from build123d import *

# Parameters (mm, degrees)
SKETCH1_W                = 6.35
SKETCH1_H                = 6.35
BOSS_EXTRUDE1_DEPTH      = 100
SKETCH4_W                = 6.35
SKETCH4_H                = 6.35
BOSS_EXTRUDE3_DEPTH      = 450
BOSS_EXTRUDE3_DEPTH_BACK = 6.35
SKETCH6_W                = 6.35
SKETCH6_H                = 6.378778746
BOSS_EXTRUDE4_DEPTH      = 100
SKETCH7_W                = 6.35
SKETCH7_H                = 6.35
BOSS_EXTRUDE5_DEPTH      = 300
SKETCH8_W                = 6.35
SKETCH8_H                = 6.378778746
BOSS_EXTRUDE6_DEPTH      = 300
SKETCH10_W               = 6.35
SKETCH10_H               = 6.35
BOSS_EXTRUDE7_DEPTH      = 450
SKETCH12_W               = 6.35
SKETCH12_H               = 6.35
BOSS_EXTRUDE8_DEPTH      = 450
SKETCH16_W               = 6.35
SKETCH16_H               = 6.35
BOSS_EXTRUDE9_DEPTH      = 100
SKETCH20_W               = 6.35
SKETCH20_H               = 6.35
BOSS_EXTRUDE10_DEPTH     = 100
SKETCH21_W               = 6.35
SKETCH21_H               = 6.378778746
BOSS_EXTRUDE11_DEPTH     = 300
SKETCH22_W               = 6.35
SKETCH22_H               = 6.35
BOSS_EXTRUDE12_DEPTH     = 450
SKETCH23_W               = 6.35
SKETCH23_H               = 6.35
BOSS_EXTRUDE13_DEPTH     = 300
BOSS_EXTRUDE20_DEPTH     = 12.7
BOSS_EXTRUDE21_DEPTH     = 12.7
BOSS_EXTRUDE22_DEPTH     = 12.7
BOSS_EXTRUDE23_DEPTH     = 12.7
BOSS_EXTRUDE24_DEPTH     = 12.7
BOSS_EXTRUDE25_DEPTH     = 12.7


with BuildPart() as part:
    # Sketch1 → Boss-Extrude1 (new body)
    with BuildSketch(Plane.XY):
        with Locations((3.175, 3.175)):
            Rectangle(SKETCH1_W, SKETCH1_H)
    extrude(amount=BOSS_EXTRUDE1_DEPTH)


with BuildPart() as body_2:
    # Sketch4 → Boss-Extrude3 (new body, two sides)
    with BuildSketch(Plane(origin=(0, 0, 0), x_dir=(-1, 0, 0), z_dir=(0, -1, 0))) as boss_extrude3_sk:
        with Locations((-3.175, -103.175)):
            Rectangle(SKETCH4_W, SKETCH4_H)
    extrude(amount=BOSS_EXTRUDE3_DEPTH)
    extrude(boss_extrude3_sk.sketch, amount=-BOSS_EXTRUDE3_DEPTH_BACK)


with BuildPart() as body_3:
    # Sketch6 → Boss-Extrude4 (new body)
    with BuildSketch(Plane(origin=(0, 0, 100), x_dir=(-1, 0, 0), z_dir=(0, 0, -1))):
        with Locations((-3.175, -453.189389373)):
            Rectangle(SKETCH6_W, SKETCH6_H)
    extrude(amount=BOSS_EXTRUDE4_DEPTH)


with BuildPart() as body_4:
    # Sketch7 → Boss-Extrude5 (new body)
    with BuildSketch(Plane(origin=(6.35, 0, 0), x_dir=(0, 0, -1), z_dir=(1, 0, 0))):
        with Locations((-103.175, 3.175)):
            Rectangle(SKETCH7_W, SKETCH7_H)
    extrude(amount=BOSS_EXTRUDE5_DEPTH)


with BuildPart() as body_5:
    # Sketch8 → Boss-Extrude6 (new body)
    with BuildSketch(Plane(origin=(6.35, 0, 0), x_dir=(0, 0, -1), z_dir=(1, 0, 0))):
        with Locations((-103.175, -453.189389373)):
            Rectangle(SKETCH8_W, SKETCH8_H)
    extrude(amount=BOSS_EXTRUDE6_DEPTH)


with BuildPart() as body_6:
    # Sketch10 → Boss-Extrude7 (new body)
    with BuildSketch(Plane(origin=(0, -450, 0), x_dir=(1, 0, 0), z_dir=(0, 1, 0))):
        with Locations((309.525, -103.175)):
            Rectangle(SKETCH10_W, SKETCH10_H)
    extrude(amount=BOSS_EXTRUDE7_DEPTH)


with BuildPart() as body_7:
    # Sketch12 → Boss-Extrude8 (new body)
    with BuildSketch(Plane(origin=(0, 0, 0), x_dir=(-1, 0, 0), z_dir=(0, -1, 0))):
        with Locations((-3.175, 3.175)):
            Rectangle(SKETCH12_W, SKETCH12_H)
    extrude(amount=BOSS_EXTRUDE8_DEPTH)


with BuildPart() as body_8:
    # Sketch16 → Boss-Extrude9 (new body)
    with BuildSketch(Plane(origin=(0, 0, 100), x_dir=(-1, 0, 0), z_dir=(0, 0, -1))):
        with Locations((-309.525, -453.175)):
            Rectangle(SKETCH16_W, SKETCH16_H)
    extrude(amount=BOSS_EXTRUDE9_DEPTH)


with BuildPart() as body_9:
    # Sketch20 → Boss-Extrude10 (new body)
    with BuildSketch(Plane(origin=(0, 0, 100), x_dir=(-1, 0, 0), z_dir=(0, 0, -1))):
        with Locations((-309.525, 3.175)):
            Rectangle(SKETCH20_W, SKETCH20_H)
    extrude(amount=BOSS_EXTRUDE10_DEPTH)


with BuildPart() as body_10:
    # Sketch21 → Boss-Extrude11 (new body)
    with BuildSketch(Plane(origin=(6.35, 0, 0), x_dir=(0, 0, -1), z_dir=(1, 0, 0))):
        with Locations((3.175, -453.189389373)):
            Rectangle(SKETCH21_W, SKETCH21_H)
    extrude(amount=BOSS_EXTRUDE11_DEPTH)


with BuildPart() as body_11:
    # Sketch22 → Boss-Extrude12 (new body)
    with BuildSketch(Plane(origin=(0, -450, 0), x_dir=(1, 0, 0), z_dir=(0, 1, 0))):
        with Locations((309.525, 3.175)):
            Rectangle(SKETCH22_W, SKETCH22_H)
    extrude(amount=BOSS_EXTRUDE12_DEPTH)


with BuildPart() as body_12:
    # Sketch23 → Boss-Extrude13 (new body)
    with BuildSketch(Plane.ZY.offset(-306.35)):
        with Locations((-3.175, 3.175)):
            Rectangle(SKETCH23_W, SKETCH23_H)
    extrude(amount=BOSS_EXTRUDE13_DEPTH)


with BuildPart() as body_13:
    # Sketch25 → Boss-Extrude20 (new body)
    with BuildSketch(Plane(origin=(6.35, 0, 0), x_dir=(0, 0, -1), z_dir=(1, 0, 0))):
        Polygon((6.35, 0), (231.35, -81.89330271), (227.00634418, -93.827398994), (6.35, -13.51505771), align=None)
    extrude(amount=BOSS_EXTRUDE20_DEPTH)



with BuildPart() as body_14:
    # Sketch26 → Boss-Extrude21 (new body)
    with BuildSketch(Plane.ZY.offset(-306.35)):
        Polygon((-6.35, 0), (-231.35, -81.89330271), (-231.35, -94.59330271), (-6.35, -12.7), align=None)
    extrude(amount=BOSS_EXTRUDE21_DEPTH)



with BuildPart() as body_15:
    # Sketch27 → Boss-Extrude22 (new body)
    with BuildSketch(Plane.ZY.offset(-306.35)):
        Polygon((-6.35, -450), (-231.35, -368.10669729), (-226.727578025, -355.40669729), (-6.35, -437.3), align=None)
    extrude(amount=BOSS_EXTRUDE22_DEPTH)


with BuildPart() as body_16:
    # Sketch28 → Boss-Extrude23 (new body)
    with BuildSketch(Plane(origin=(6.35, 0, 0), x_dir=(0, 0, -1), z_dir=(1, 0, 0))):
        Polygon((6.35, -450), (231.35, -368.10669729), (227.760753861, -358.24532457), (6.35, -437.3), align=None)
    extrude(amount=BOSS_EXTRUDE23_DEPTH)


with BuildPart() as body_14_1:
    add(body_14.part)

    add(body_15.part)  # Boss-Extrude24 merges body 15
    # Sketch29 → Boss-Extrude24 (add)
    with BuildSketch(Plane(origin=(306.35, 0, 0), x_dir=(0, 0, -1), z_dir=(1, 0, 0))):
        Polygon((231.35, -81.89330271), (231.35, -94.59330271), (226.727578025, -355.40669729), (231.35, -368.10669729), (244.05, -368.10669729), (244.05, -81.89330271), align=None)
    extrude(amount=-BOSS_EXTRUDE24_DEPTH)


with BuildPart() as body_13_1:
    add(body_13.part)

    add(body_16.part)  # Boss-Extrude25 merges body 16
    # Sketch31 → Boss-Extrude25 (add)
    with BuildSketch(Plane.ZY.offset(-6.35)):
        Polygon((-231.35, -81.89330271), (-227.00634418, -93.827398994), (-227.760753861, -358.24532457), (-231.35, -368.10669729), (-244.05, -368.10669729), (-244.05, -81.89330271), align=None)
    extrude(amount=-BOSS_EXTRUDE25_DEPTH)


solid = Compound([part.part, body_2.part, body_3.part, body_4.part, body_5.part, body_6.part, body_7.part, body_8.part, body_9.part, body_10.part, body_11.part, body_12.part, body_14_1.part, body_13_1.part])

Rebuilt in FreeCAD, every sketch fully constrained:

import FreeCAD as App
import Part
import Sketcher
Q = App.Units.Quantity

doc = App.newDocument("Part")
body = doc.addObject("PartDesign::Body", "Body")

# Sketch on XY plane
sketch1 = body.newObject("Sketcher::SketchObject", "Sketch")
sketch1.AttachmentSupport = (doc.getObject("XY_Plane"), [""])
sketch1.MapMode = "FlatFace"
sketch1.addGeometry([
    Part.LineSegment(App.Vector(0, 6.35, 0), App.Vector(0, 0, 0)),
    Part.LineSegment(App.Vector(0, 0, 0), App.Vector(6.35, 0, 0)),
    Part.LineSegment(App.Vector(6.35, 0, 0), App.Vector(6.35, 6.35, 0)),
    Part.LineSegment(App.Vector(6.35, 6.35, 0), App.Vector(0, 6.35, 0)),
], False)
sketch1.addConstraint([
    Sketcher.Constraint("Coincident", 0, 2, 1, 1),
    Sketcher.Constraint("Coincident", 1, 2, 2, 1),
    Sketcher.Constraint("Coincident", 2, 2, 3, 1),
    Sketcher.Constraint("Coincident", 3, 2, 0, 1),
    Sketcher.Constraint("Vertical", 0),
    Sketcher.Constraint("Horizontal", 1),
    Sketcher.Constraint("Vertical", 2),
    Sketcher.Constraint("Horizontal", 3),
    Sketcher.Constraint("Coincident", 0, 2, -1, 1),
    Sketcher.Constraint("Equal", 3, 0),
    Sketcher.Constraint("DistanceX", 1, 1, 1, 2, 6.35),
])
pad1 = body.newObject("PartDesign::Pad", "Pad")
pad1.Profile = sketch1
pad1.Length = 100
body2 = doc.addObject("PartDesign::Body", "Body001")

# Sketch on XZ plane
sketch2 = body2.newObject("Sketcher::SketchObject", "Sketch001")
sketch2.AttachmentSupport = (doc.getObject("XZ_Plane001"), [""])
sketch2.MapMode = "FlatFace"
sketch2.addGeometry([
    Part.LineSegment(App.Vector(6.35, 100, 0), App.Vector(6.35, 106.35, 0)),
    Part.LineSegment(App.Vector(6.35, 106.35, 0), App.Vector(0, 106.35, 0)),
    Part.LineSegment(App.Vector(0, 106.35, 0), App.Vector(0, 100, 0)),
    Part.LineSegment(App.Vector(0, 100, 0), App.Vector(6.35, 100, 0)),
], False)
sketch2.addConstraint([
    Sketcher.Constraint("Coincident", 0, 2, 1, 1),
    Sketcher.Constraint("Coincident", 1, 2, 2, 1),
    Sketcher.Constraint("Coincident", 2, 2, 3, 1),
    Sketcher.Constraint("Coincident", 3, 2, 0, 1),
    Sketcher.Constraint("Vertical", 0),
    Sketcher.Constraint("Horizontal", 1),
    Sketcher.Constraint("Vertical", 2),
    Sketcher.Constraint("Horizontal", 3),
    Sketcher.Constraint("PointOnObject", 1, 2, -2),
    Sketcher.Constraint("Equal", 3, 0),
    Sketcher.Constraint("DistanceY", -1, 1, 2, 2, 100.0),
    Sketcher.Constraint("DistanceX", 1, 2, 1, 1, 6.35),
])
pad2 = body2.newObject("PartDesign::Pad", "Pad001")
pad2.Profile = sketch2
pad2.Type = "TwoLengths"
pad2.Length = 450
pad2.Length2 = 6.35
body3 = doc.addObject("PartDesign::Body", "Body002")

# Sketch on XY plane
sketch3 = body3.newObject("Sketcher::SketchObject", "Sketch002")
sketch3.AttachmentSupport = (doc.getObject("XY_Plane002"), [""])
sketch3.MapMode = "FlatFace"
sketch3.AttachmentOffset = App.Placement(App.Vector(0, 0, 100), App.Rotation())
sketch3.addGeometry([
    Part.LineSegment(App.Vector(6.35, -450, 0), App.Vector(6.35, -456.378779, 0)),
    Part.LineSegment(App.Vector(6.35, -456.378779, 0), App.Vector(0, -456.378779, 0)),
    Part.LineSegment(App.Vector(0, -456.378779, 0), App.Vector(0, -450, 0)),
    Part.LineSegment(App.Vector(0, -450, 0), App.Vector(6.35, -450, 0)),
], False)
sketch3.addConstraint([
    Sketcher.Constraint("Coincident", 0, 2, 1, 1),
    Sketcher.Constraint("Coincident", 1, 2, 2, 1),
    Sketcher.Constraint("Coincident", 2, 2, 3, 1),
    Sketcher.Constraint("Coincident", 3, 2, 0, 1),
    Sketcher.Constraint("Vertical", 0),
    Sketcher.Constraint("Horizontal", 1),
    Sketcher.Constraint("Vertical", 2),
    Sketcher.Constraint("Horizontal", 3),
    Sketcher.Constraint("PointOnObject", 1, 2, -2),
    Sketcher.Constraint("DistanceY", 2, 2, -1, 1, 450.0),
    Sketcher.Constraint("DistanceX", 1, 2, 1, 1, 6.35),
    Sketcher.Constraint("DistanceY", 0, 2, 0, 1, 6.378779),
])
pad3 = body3.newObject("PartDesign::Pad", "Pad002")
pad3.Profile = sketch3
pad3.Length = 100
pad3.Reversed = True
body4 = doc.addObject("PartDesign::Body", "Body003")

# Sketch on YZ plane
sketch4 = body4.newObject("Sketcher::SketchObject", "Sketch003")
sketch4.AttachmentSupport = (doc.getObject("YZ_Plane003"), [""])
sketch4.MapMode = "FlatFace"
sketch4.AttachmentOffset = App.Placement(App.Vector(0, 0, 6.35), App.Rotation())
sketch4.addGeometry([
    Part.LineSegment(App.Vector(6.35, 106.35, 0), App.Vector(0, 106.35, 0)),
    Part.LineSegment(App.Vector(0, 106.35, 0), App.Vector(0, 100, 0)),
    Part.LineSegment(App.Vector(0, 100, 0), App.Vector(6.35, 100, 0)),
    Part.LineSegment(App.Vector(6.35, 100, 0), App.Vector(6.35, 106.35, 0)),
], False)
sketch4.addConstraint([
    Sketcher.Constraint("Coincident", 0, 2, 1, 1),
    Sketcher.Constraint("Coincident", 1, 2, 2, 1),
    Sketcher.Constraint("Coincident", 2, 2, 3, 1),
    Sketcher.Constraint("Coincident", 3, 2, 0, 1),
    Sketcher.Constraint("Horizontal", 0),
    Sketcher.Constraint("Vertical", 1),
    Sketcher.Constraint("Horizontal", 2),
    Sketcher.Constraint("Vertical", 3),
    Sketcher.Constraint("PointOnObject", 0, 2, -2),
    Sketcher.Constraint("Equal", 2, 1),
    Sketcher.Constraint("DistanceY", -1, 1, 1, 2, 100.0),
    Sketcher.Constraint("DistanceX", 0, 2, 0, 1, 6.35),
])
pad4 = body4.newObject("PartDesign::Pad", "Pad003")
pad4.Profile = sketch4
pad4.Length = 300
body5 = doc.addObject("PartDesign::Body", "Body004")

# Sketch on YZ plane
sketch5 = body5.newObject("Sketcher::SketchObject", "Sketch004")
sketch5.AttachmentSupport = (doc.getObject("YZ_Plane004"), [""])
sketch5.MapMode = "FlatFace"
sketch5.AttachmentOffset = App.Placement(App.Vector(0, 0, 6.35), App.Rotation())
sketch5.addGeometry([
    Part.LineSegment(App.Vector(-450, 106.35, 0), App.Vector(-456.378779, 106.35, 0)),
    Part.LineSegment(App.Vector(-456.378779, 106.35, 0), App.Vector(-456.378779, 100, 0)),
    Part.LineSegment(App.Vector(-456.378779, 100, 0), App.Vector(-450, 100, 0)),
    Part.LineSegment(App.Vector(-450, 100, 0), App.Vector(-450, 106.35, 0)),
], False)
sketch5.addConstraint([
    Sketcher.Constraint("Coincident", 0, 2, 1, 1),
    Sketcher.Constraint("Coincident", 1, 2, 2, 1),
    Sketcher.Constraint("Coincident", 2, 2, 3, 1),
    Sketcher.Constraint("Coincident", 3, 2, 0, 1),
    Sketcher.Constraint("Horizontal", 0),
    Sketcher.Constraint("Vertical", 1),
    Sketcher.Constraint("Horizontal", 2),
    Sketcher.Constraint("Vertical", 3),
    Sketcher.Constraint("DistanceY", -1, 1, 1, 2, 100.0),
    Sketcher.Constraint("DistanceX", 2, 2, -1, 1, 450.0),
    Sketcher.Constraint("DistanceY", 1, 2, 1, 1, 6.35),
    Sketcher.Constraint("DistanceX", 0, 2, 0, 1, 6.378779),
])
pad5 = body5.newObject("PartDesign::Pad", "Pad004")
pad5.Profile = sketch5
pad5.Length = 300
body6 = doc.addObject("PartDesign::Body", "Body005")

# Sketch on XZ plane
sketch6 = body6.newObject("Sketcher::SketchObject", "Sketch005")
sketch6.AttachmentSupport = (doc.getObject("XZ_Plane005"), [""])
sketch6.MapMode = "FlatFace"
sketch6.AttachmentOffset = App.Placement(App.Vector(0, 0, 450), App.Rotation())
sketch6.addGeometry([
    Part.LineSegment(App.Vector(306.35, 100, 0), App.Vector(306.35, 106.35, 0)),
    Part.LineSegment(App.Vector(306.35, 106.35, 0), App.Vector(312.7, 106.35, 0)),
    Part.LineSegment(App.Vector(312.7, 106.35, 0), App.Vector(312.7, 100, 0)),
    Part.LineSegment(App.Vector(312.7, 100, 0), App.Vector(306.35, 100, 0)),
], False)
sketch6.addConstraint([
    Sketcher.Constraint("Coincident", 0, 2, 1, 1),
    Sketcher.Constraint("Coincident", 1, 2, 2, 1),
    Sketcher.Constraint("Coincident", 2, 2, 3, 1),
    Sketcher.Constraint("Coincident", 3, 2, 0, 1),
    Sketcher.Constraint("Vertical", 0),
    Sketcher.Constraint("Horizontal", 1),
    Sketcher.Constraint("Vertical", 2),
    Sketcher.Constraint("Horizontal", 3),
    Sketcher.Constraint("Equal", 3, 0),
    Sketcher.Constraint("DistanceY", -1, 1, 2, 2, 100.0),
    Sketcher.Constraint("DistanceX", 1, 1, 1, 2, 6.35),
    Sketcher.Constraint("DistanceX", -1, 1, 1, 2, 312.7),
])
pad6 = body6.newObject("PartDesign::Pad", "Pad005")
pad6.Profile = sketch6
pad6.Length = 450
pad6.Reversed = True
body7 = doc.addObject("PartDesign::Body", "Body006")

# Sketch on XZ plane
sketch7 = body7.newObject("Sketcher::SketchObject", "Sketch006")
sketch7.AttachmentSupport = (doc.getObject("XZ_Plane006"), [""])
sketch7.MapMode = "FlatFace"
sketch7.addGeometry([
    Part.LineSegment(App.Vector(6.35, -6.35, 0), App.Vector(6.35, 0, 0)),
    Part.LineSegment(App.Vector(6.35, 0, 0), App.Vector(0, 0, 0)),
    Part.LineSegment(App.Vector(0, 0, 0), App.Vector(0, -6.35, 0)),
    Part.LineSegment(App.Vector(0, -6.35, 0), App.Vector(6.35, -6.35, 0)),
], False)
sketch7.addConstraint([
    Sketcher.Constraint("Coincident", 0, 2, 1, 1),
    Sketcher.Constraint("Coincident", 1, 2, 2, 1),
    Sketcher.Constraint("Coincident", 2, 2, 3, 1),
    Sketcher.Constraint("Coincident", 3, 2, 0, 1),
    Sketcher.Constraint("Vertical", 0),
    Sketcher.Constraint("Horizontal", 1),
    Sketcher.Constraint("Vertical", 2),
    Sketcher.Constraint("Horizontal", 3),
    Sketcher.Constraint("Coincident", 1, 2, -1, 1),
    Sketcher.Constraint("Equal", 3, 0),
    Sketcher.Constraint("DistanceX", 1, 2, 1, 1, 6.35),
])
pad7 = body7.newObject("PartDesign::Pad", "Pad006")
pad7.Profile = sketch7
pad7.Length = 450
body8 = doc.addObject("PartDesign::Body", "Body007")

# Sketch on XY plane
sketch8 = body8.newObject("Sketcher::SketchObject", "Sketch007")
sketch8.AttachmentSupport = (doc.getObject("XY_Plane007"), [""])
sketch8.MapMode = "FlatFace"
sketch8.AttachmentOffset = App.Placement(App.Vector(0, 0, 100), App.Rotation())
sketch8.addGeometry([
    Part.LineSegment(App.Vector(312.7, -450, 0), App.Vector(312.7, -456.35, 0)),
    Part.LineSegment(App.Vector(312.7, -456.35, 0), App.Vector(306.35, -456.35, 0)),
    Part.LineSegment(App.Vector(306.35, -456.35, 0), App.Vector(306.35, -450, 0)),
    Part.LineSegment(App.Vector(306.35, -450, 0), App.Vector(312.7, -450, 0)),
], False)
sketch8.addConstraint([
    Sketcher.Constraint("Coincident", 0, 2, 1, 1),
    Sketcher.Constraint("Coincident", 1, 2, 2, 1),
    Sketcher.Constraint("Coincident", 2, 2, 3, 1),
    Sketcher.Constraint("Coincident", 3, 2, 0, 1),
    Sketcher.Constraint("Vertical", 0),
    Sketcher.Constraint("Horizontal", 1),
    Sketcher.Constraint("Vertical", 2),
    Sketcher.Constraint("Horizontal", 3),
    Sketcher.Constraint("Equal", 3, 0),
    Sketcher.Constraint("DistanceY", 2, 2, -1, 1, 450.0),
    Sketcher.Constraint("DistanceX", 1, 2, 1, 1, 6.35),
    Sketcher.Constraint("DistanceX", -1, 1, 0, 2, 312.7),
])
pad8 = body8.newObject("PartDesign::Pad", "Pad007")
pad8.Profile = sketch8
pad8.Length = 100
pad8.Reversed = True
body9 = doc.addObject("PartDesign::Body", "Body008")

# Sketch on XY plane
sketch9 = body9.newObject("Sketcher::SketchObject", "Sketch008")
sketch9.AttachmentSupport = (doc.getObject("XY_Plane008"), [""])
sketch9.MapMode = "FlatFace"
sketch9.AttachmentOffset = App.Placement(App.Vector(0, 0, 100), App.Rotation())
sketch9.addGeometry([
    Part.LineSegment(App.Vector(312.7, 6.35, 0), App.Vector(312.7, 0, 0)),
    Part.LineSegment(App.Vector(312.7, 0, 0), App.Vector(306.35, 0, 0)),
    Part.LineSegment(App.Vector(306.35, 0, 0), App.Vector(306.35, 6.35, 0)),
    Part.LineSegment(App.Vector(306.35, 6.35, 0), App.Vector(312.7, 6.35, 0)),
], False)
sketch9.addConstraint([
    Sketcher.Constraint("Coincident", 0, 2, 1, 1),
    Sketcher.Constraint("Coincident", 1, 2, 2, 1),
    Sketcher.Constraint("Coincident", 2, 2, 3, 1),
    Sketcher.Constraint("Coincident", 3, 2, 0, 1),
    Sketcher.Constraint("Vertical", 0),
    Sketcher.Constraint("Horizontal", 1),
    Sketcher.Constraint("Vertical", 2),
    Sketcher.Constraint("Horizontal", 3),
    Sketcher.Constraint("PointOnObject", 0, 2, -1),
    Sketcher.Constraint("Equal", 3, 0),
    Sketcher.Constraint("DistanceX", 1, 2, 1, 1, 6.35),
    Sketcher.Constraint("DistanceX", -1, 1, 0, 2, 312.7),
])
pad9 = body9.newObject("PartDesign::Pad", "Pad008")
pad9.Profile = sketch9
pad9.Length = 100
pad9.Reversed = True
body10 = doc.addObject("PartDesign::Body", "Body009")

# Sketch on YZ plane
sketch10 = body10.newObject("Sketcher::SketchObject", "Sketch009")
sketch10.AttachmentSupport = (doc.getObject("YZ_Plane009"), [""])
sketch10.MapMode = "FlatFace"
sketch10.AttachmentOffset = App.Placement(App.Vector(0, 0, 6.35), App.Rotation())
sketch10.addGeometry([
    Part.LineSegment(App.Vector(-450, 0, 0), App.Vector(-456.378779, 0, 0)),
    Part.LineSegment(App.Vector(-456.378779, 0, 0), App.Vector(-456.378779, -6.35, 0)),
    Part.LineSegment(App.Vector(-456.378779, -6.35, 0), App.Vector(-450, -6.35, 0)),
    Part.LineSegment(App.Vector(-450, -6.35, 0), App.Vector(-450, 0, 0)),
], False)
sketch10.addConstraint([
    Sketcher.Constraint("Coincident", 0, 2, 1, 1),
    Sketcher.Constraint("Coincident", 1, 2, 2, 1),
    Sketcher.Constraint("Coincident", 2, 2, 3, 1),
    Sketcher.Constraint("Coincident", 3, 2, 0, 1),
    Sketcher.Constraint("Horizontal", 0),
    Sketcher.Constraint("Vertical", 1),
    Sketcher.Constraint("Horizontal", 2),
    Sketcher.Constraint("Vertical", 3),
    Sketcher.Constraint("PointOnObject", 0, 2, -1),
    Sketcher.Constraint("DistanceX", 2, 2, -1, 1, 450.0),
    Sketcher.Constraint("DistanceY", 1, 2, 1, 1, 6.35),
    Sketcher.Constraint("DistanceX", 0, 2, 0, 1, 6.378779),
])
pad10 = body10.newObject("PartDesign::Pad", "Pad009")
pad10.Profile = sketch10
pad10.Length = 300
body11 = doc.addObject("PartDesign::Body", "Body010")

# Sketch on XZ plane
sketch11 = body11.newObject("Sketcher::SketchObject", "Sketch010")
sketch11.AttachmentSupport = (doc.getObject("XZ_Plane010"), [""])
sketch11.MapMode = "FlatFace"
sketch11.AttachmentOffset = App.Placement(App.Vector(0, 0, 450), App.Rotation())
sketch11.addGeometry([
    Part.LineSegment(App.Vector(306.35, -6.35, 0), App.Vector(306.35, 0, 0)),
    Part.LineSegment(App.Vector(306.35, 0, 0), App.Vector(312.7, 0, 0)),
    Part.LineSegment(App.Vector(312.7, 0, 0), App.Vector(312.7, -6.35, 0)),
    Part.LineSegment(App.Vector(312.7, -6.35, 0), App.Vector(306.35, -6.35, 0)),
], False)
sketch11.addConstraint([
    Sketcher.Constraint("Coincident", 0, 2, 1, 1),
    Sketcher.Constraint("Coincident", 1, 2, 2, 1),
    Sketcher.Constraint("Coincident", 2, 2, 3, 1),
    Sketcher.Constraint("Coincident", 3, 2, 0, 1),
    Sketcher.Constraint("Vertical", 0),
    Sketcher.Constraint("Horizontal", 1),
    Sketcher.Constraint("Vertical", 2),
    Sketcher.Constraint("Horizontal", 3),
    Sketcher.Constraint("PointOnObject", 0, 2, -1),
    Sketcher.Constraint("Equal", 3, 0),
    Sketcher.Constraint("DistanceX", 1, 1, 1, 2, 6.35),
    Sketcher.Constraint("DistanceX", -1, 1, 1, 2, 312.7),
])
pad11 = body11.newObject("PartDesign::Pad", "Pad010")
pad11.Profile = sketch11
pad11.Length = 450
pad11.Reversed = True
body12 = doc.addObject("PartDesign::Body", "Body011")

# Sketch on YZ plane
sketch12 = body12.newObject("Sketcher::SketchObject", "Sketch011")
sketch12.AttachmentSupport = (doc.getObject("YZ_Plane011"), [""])
sketch12.MapMode = "FlatFace"
sketch12.AttachmentOffset = App.Placement(App.Vector(0, 0, 306.35), App.Rotation())
sketch12.addGeometry([
    Part.LineSegment(App.Vector(6.35, -6.35, 0), App.Vector(0, -6.35, 0)),
    Part.LineSegment(App.Vector(0, -6.35, 0), App.Vector(0, 0, 0)),
    Part.LineSegment(App.Vector(0, 0, 0), App.Vector(6.35, 0, 0)),
    Part.LineSegment(App.Vector(6.35, 0, 0), App.Vector(6.35, -6.35, 0)),
], False)
sketch12.addConstraint([
    Sketcher.Constraint("Coincident", 0, 2, 1, 1),
    Sketcher.Constraint("Coincident", 1, 2, 2, 1),
    Sketcher.Constraint("Coincident", 2, 2, 3, 1),
    Sketcher.Constraint("Coincident", 3, 2, 0, 1),
    Sketcher.Constraint("Horizontal", 0),
    Sketcher.Constraint("Vertical", 1),
    Sketcher.Constraint("Horizontal", 2),
    Sketcher.Constraint("Vertical", 3),
    Sketcher.Constraint("Coincident", 1, 2, -1, 1),
    Sketcher.Constraint("Equal", 2, 1),
    Sketcher.Constraint("DistanceX", 0, 2, 0, 1, 6.35),
])
pad12 = body12.newObject("PartDesign::Pad", "Pad011")
pad12.Profile = sketch12
pad12.Length = 300
pad12.Reversed = True
body13 = doc.addObject("PartDesign::Body", "Body012")

# Sketch on YZ plane
sketch13 = body13.newObject("Sketcher::SketchObject", "Sketch012")
sketch13.AttachmentSupport = (doc.getObject("YZ_Plane012"), [""])
sketch13.MapMode = "FlatFace"
sketch13.AttachmentOffset = App.Placement(App.Vector(0, 0, 6.35), App.Rotation())
sketch13.addGeometry([
    Part.LineSegment(App.Vector(-81.893303, -231.35, 0), App.Vector(0, -6.35, 0)),
    Part.LineSegment(App.Vector(0, -6.35, 0), App.Vector(-13.515058, -6.35, 0)),
    Part.LineSegment(App.Vector(-13.515058, -6.35, 0), App.Vector(-93.827399, -227.006344, 0)),
    Part.LineSegment(App.Vector(-93.827399, -227.006344, 0), App.Vector(-81.893303, -231.35, 0)),
], False)
sketch13.addConstraint([
    Sketcher.Constraint("Coincident", 0, 2, 1, 1),
    Sketcher.Constraint("Coincident", 1, 2, 2, 1),
    Sketcher.Constraint("Coincident", 2, 2, 3, 1),
    Sketcher.Constraint("Coincident", 3, 2, 0, 1),
    Sketcher.Constraint("Horizontal", 1),
    Sketcher.Constraint("PointOnObject", 0, 2, -2),
    Sketcher.Constraint("Parallel", 0, 2),
    Sketcher.Constraint("Perpendicular", 2, 3),
    Sketcher.Constraint("Angle", 0, Q("70 deg")),
    Sketcher.Constraint("DistanceY", 3, 2, 1, 2, 225.0),
    Sketcher.Constraint("Distance", 3, 12.7),
    Sketcher.Constraint("DistanceY", 0, 2, -1, 1, 6.35),
])
pad13 = body13.newObject("PartDesign::Pad", "Pad012")
pad13.Profile = sketch13
pad13.Length = 12.7
body14 = doc.addObject("PartDesign::Body", "Body013")

# Sketch on YZ plane
sketch14 = body14.newObject("Sketcher::SketchObject", "Sketch013")
sketch14.AttachmentSupport = (doc.getObject("YZ_Plane013"), [""])
sketch14.MapMode = "FlatFace"
sketch14.AttachmentOffset = App.Placement(App.Vector(0, 0, 306.35), App.Rotation())
sketch14.addGeometry([
    Part.LineSegment(App.Vector(0, -6.35, 0), App.Vector(-81.893303, -231.35, 0)),
    Part.LineSegment(App.Vector(-81.893303, -231.35, 0), App.Vector(-94.593303, -231.35, 0)),
    Part.LineSegment(App.Vector(-94.593303, -231.35, 0), App.Vector(-12.7, -6.35, 0)),
    Part.LineSegment(App.Vector(-12.7, -6.35, 0), App.Vector(0, -6.35, 0)),
], False)
sketch14.addConstraint([
    Sketcher.Constraint("Coincident", 0, 2, 1, 1),
    Sketcher.Constraint("Coincident", 1, 2, 2, 1),
    Sketcher.Constraint("Coincident", 2, 2, 3, 1),
    Sketcher.Constraint("Coincident", 3, 2, 0, 1),
    Sketcher.Constraint("Horizontal", 1),
    Sketcher.Constraint("Horizontal", 3),
    Sketcher.Constraint("PointOnObject", 3, 2, -2),
    Sketcher.Constraint("Parallel", 0, 2),
    Sketcher.Constraint("Angle", 0, Q("-110 deg")),
    Sketcher.Constraint("DistanceX", 1, 2, 1, 1, 12.7),
    Sketcher.Constraint("DistanceY", 0, 2, 2, 2, 225.0),
    Sketcher.Constraint("DistanceY", 0, 2, -1, 1, 231.35),
])
pad14 = body14.newObject("PartDesign::Pad", "Pad013")
pad14.Profile = sketch14
pad14.Length = 12.7
pad14.Reversed = True
body15 = doc.addObject("PartDesign::Body", "Body014")

# Sketch on YZ plane
sketch15 = body15.newObject("Sketcher::SketchObject", "Sketch014")
sketch15.AttachmentSupport = (doc.getObject("YZ_Plane014"), [""])
sketch15.MapMode = "FlatFace"
sketch15.AttachmentOffset = App.Placement(App.Vector(0, 0, 306.35), App.Rotation())
sketch15.addGeometry([
    Part.LineSegment(App.Vector(-368.106697, -231.35, 0), App.Vector(-450, -6.35, 0)),
    Part.LineSegment(App.Vector(-450, -6.35, 0), App.Vector(-437.3, -6.35, 0)),
    Part.LineSegment(App.Vector(-437.3, -6.35, 0), App.Vector(-355.406697, -226.727578, 0)),
    Part.LineSegment(App.Vector(-355.406697, -226.727578, 0), App.Vector(-368.106697, -231.35, 0)),
], False)
sketch15.addConstraint([
    Sketcher.Constraint("Coincident", 0, 2, 1, 1),
    Sketcher.Constraint("Coincident", 1, 2, 2, 1),
    Sketcher.Constraint("Coincident", 2, 2, 3, 1),
    Sketcher.Constraint("Coincident", 3, 2, 0, 1),
    Sketcher.Constraint("Horizontal", 1),
    Sketcher.Constraint("Perpendicular", 0, 3),
    Sketcher.Constraint("Angle", 0, Q("110 deg")),
    Sketcher.Constraint("DistanceX", 1, 1, 1, 2, 12.7),
    Sketcher.Constraint("DistanceX", 0, 2, -1, 1, 450.0),
    Sketcher.Constraint("DistanceY", 3, 2, 1, 2, 225.0),
    Sketcher.Constraint("DistanceX", 3, 2, 2, 2, 12.7),
    Sketcher.Constraint("DistanceY", 0, 2, -1, 1, 6.35),
])
pad15 = body15.newObject("PartDesign::Pad", "Pad014")
pad15.Profile = sketch15
pad15.Length = 12.7
pad15.Reversed = True
body16 = doc.addObject("PartDesign::Body", "Body015")

# Sketch on YZ plane
sketch16 = body16.newObject("Sketcher::SketchObject", "Sketch015")
sketch16.AttachmentSupport = (doc.getObject("YZ_Plane015"), [""])
sketch16.MapMode = "FlatFace"
sketch16.AttachmentOffset = App.Placement(App.Vector(0, 0, 6.35), App.Rotation())
sketch16.addGeometry([
    Part.LineSegment(App.Vector(-450, -6.35, 0), App.Vector(-368.106697, -231.35, 0)),
    Part.LineSegment(App.Vector(-368.106697, -231.35, 0), App.Vector(-358.245325, -227.760754, 0)),
    Part.LineSegment(App.Vector(-358.245325, -227.760754, 0), App.Vector(-437.3, -6.35, 0)),
    Part.LineSegment(App.Vector(-437.3, -6.35, 0), App.Vector(-450, -6.35, 0)),
], False)
sketch16.addConstraint([
    Sketcher.Constraint("Coincident", 0, 2, 1, 1),
    Sketcher.Constraint("Coincident", 1, 2, 2, 1),
    Sketcher.Constraint("Coincident", 2, 2, 3, 1),
    Sketcher.Constraint("Coincident", 3, 2, 0, 1),
    Sketcher.Constraint("Horizontal", 3),
    Sketcher.Constraint("Perpendicular", 0, 1),
    Sketcher.Constraint("Angle", 0, Q("-70 deg")),
    Sketcher.Constraint("DistanceX", 3, 2, 3, 1, 12.7),
    Sketcher.Constraint("DistanceX", 3, 2, -1, 1, 450.0),
    Sketcher.Constraint("DistanceY", 0, 2, 2, 2, 225.0),
    Sketcher.Constraint("DistanceY", 0, 2, -1, 1, 231.35),
    Sketcher.Constraint("Distance", 1, 10.494254),
])
pad16 = body16.newObject("PartDesign::Pad", "Pad015")
pad16.Profile = sketch16
pad16.Length = 12.7
body14.AllowCompound = True
doc.recompute()

boolean = body14.newObject("PartDesign::Boolean", "Boolean")
boolean.Type = "Fuse"
boolean.addObjects([body15])

# Sketch on YZ plane
sketch17 = body14.newObject("Sketcher::SketchObject", "Sketch016")
sketch17.AttachmentSupport = (doc.getObject("YZ_Plane013"), [""])
sketch17.MapMode = "FlatFace"
sketch17.AttachmentOffset = App.Placement(App.Vector(0, 0, 306.35), App.Rotation())
sketch17.addGeometry([
    Part.LineSegment(App.Vector(-81.893303, -231.35, 0), App.Vector(-94.593303, -231.35, 0)),  # 0
    Part.LineSegment(App.Vector(-94.593303, -231.35, 0), App.Vector(-355.406697, -226.727578, 0)),  # 1
    Part.LineSegment(App.Vector(-355.406697, -226.727578, 0), App.Vector(-368.106697, -231.35, 0)),  # 2
    Part.LineSegment(App.Vector(-368.106697, -231.35, 0), App.Vector(-368.106697, -244.05, 0)),  # 3
    Part.LineSegment(App.Vector(-368.106697, -244.05, 0), App.Vector(-81.893303, -244.05, 0)),  # 4
    Part.LineSegment(App.Vector(-81.893303, -244.05, 0), App.Vector(-81.893303, -231.35, 0)),  # 5
], False)
sketch17.addConstraint([
    Sketcher.Constraint("Coincident", 0, 2, 1, 1),
    Sketcher.Constraint("Coincident", 1, 2, 2, 1),
    Sketcher.Constraint("Coincident", 2, 2, 3, 1),
    Sketcher.Constraint("Coincident", 3, 2, 4, 1),
    Sketcher.Constraint("Coincident", 4, 2, 5, 1),
    Sketcher.Constraint("Coincident", 5, 2, 0, 1),
    Sketcher.Constraint("Horizontal", 0),
    Sketcher.Constraint("Vertical", 3),
    Sketcher.Constraint("Horizontal", 4),
    Sketcher.Constraint("Vertical", 5),
    Sketcher.Constraint("Horizontal", 0, 2, 2, 2),
    Sketcher.Constraint("Equal", 0, 3),
    Sketcher.Constraint("Angle", 2, Q("-160 deg")),
    Sketcher.Constraint("DistanceX", 0, 2, 0, 1, 12.7),
    Sketcher.Constraint("DistanceX", 2, 2, 1, 2, 12.7),
    Sketcher.Constraint("DistanceY", 0, 2, -1, 1, 231.35),
    Sketcher.Constraint("DistanceX", 4, 1, 4, 2, 286.213395),
    Sketcher.Constraint("DistanceX", 0, 2, -1, 1, 94.593303),
])
pad17 = body14.newObject("PartDesign::Pad", "Pad016")
pad17.Profile = sketch17
pad17.Length = 12.7
pad17.Reversed = True
body13.AllowCompound = True
doc.recompute()

boolean2 = body13.newObject("PartDesign::Boolean", "Boolean001")
boolean2.Type = "Fuse"
boolean2.addObjects([body16])

# Sketch on YZ plane
sketch18 = body13.newObject("Sketcher::SketchObject", "Sketch017")
sketch18.AttachmentSupport = (doc.getObject("YZ_Plane012"), [""])
sketch18.MapMode = "FlatFace"
sketch18.AttachmentOffset = App.Placement(App.Vector(0, 0, 6.35), App.Rotation())
sketch18.addGeometry([
    Part.LineSegment(App.Vector(-93.827399, -227.006344, 0), App.Vector(-81.893303, -231.35, 0)),  # 0
    Part.LineSegment(App.Vector(-81.893303, -231.35, 0), App.Vector(-81.893303, -244.05, 0)),  # 1
    Part.LineSegment(App.Vector(-81.893303, -244.05, 0), App.Vector(-368.106697, -244.05, 0)),  # 2
    Part.LineSegment(App.Vector(-368.106697, -244.05, 0), App.Vector(-368.106697, -231.35, 0)),  # 3
    Part.LineSegment(App.Vector(-368.106697, -231.35, 0), App.Vector(-358.245325, -227.760754, 0)),  # 4
    Part.LineSegment(App.Vector(-358.245325, -227.760754, 0), App.Vector(-93.827399, -227.006344, 0)),  # 5
], False)
sketch18.addConstraint([
    Sketcher.Constraint("Coincident", 0, 2, 1, 1),
    Sketcher.Constraint("Coincident", 1, 2, 2, 1),
    Sketcher.Constraint("Coincident", 2, 2, 3, 1),
    Sketcher.Constraint("Coincident", 3, 2, 4, 1),
    Sketcher.Constraint("Coincident", 4, 2, 5, 1),
    Sketcher.Constraint("Coincident", 5, 2, 0, 1),
    Sketcher.Constraint("Vertical", 1),
    Sketcher.Constraint("Horizontal", 2),
    Sketcher.Constraint("Vertical", 3),
    Sketcher.Constraint("Horizontal", 0, 2, 3, 2),
    Sketcher.Constraint("Angle", 0, Q("-20 deg")),
    Sketcher.Constraint("Angle", 4, Q("20 deg")),
    Sketcher.Constraint("DistanceY", 1, 2, 1, 1, 12.7),
    Sketcher.Constraint("Distance", 0, 12.7),
    Sketcher.Constraint("DistanceY", 0, 2, -1, 1, 231.35),
    Sketcher.Constraint("Distance", 5, 264.419002),
    Sketcher.Constraint("DistanceX", 5, 2, -1, 1, 93.827399),
    Sketcher.Constraint("DistanceX", 3, 2, 5, 2, 274.279298),
])
pad18 = body13.newObject("PartDesign::Pad", "Pad017")
pad18.Profile = sketch18
pad18.Length = 12.7

doc.recompute()
